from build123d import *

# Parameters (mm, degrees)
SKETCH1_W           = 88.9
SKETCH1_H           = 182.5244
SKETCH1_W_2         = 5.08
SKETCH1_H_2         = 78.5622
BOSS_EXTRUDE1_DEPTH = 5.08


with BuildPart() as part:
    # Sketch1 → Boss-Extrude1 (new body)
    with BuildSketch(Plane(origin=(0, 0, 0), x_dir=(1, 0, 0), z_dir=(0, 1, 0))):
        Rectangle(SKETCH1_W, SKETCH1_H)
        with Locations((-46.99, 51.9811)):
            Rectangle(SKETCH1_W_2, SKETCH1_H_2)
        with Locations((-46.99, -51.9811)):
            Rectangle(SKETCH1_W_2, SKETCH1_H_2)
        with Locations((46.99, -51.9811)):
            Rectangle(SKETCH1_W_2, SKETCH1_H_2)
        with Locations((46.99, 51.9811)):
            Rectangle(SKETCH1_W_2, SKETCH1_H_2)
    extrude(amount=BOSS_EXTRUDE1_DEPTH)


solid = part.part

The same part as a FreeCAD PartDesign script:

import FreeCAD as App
import Part
import Sketcher
Q = App.Units.Quantity

doc = App.newDocument("Part")
body = doc.addObject("PartDesign::Body", "Body")

# Sketch on XZ plane
sketch1 = body.newObject("Sketcher::SketchObject", "Sketch")
sketch1.AttachmentSupport = (doc.getObject("XZ_Plane"), [""])
sketch1.MapMode = "FlatFace"
sketch1.addGeometry(Part.LineSegment(App.Vector(-44, -13, 0), App.Vector(-44, 13, 0)), False)
sketch1.addGeometry(Part.LineSegment(App.Vector(-44, 13, 0), App.Vector(-50, 13, 0)), False)
sketch1.addGeometry(Part.LineSegment(App.Vector(-50, 13, 0), App.Vector(-50, 91, 0)), False)
sketch1.addGeometry(Part.LineSegment(App.Vector(-50, 91, 0), App.Vector(50, 91, 0)), False)
sketch1.addGeometry(Part.LineSegment(App.Vector(50, 91, 0), App.Vector(50, 13, 0)), False)
sketch1.addGeometry(Part.LineSegment(App.Vector(50, 13, 0), App.Vector(44, 13, 0)), False)
sketch1.addGeometry(Part.LineSegment(App.Vector(44, 13, 0), App.Vector(44, -13, 0)), False)
sketch1.addGeometry(Part.LineSegment(App.Vector(44, -13, 0), App.Vector(50, -13, 0)), False)
sketch1.addGeometry(Part.LineSegment(App.Vector(50, -13, 0), App.Vector(50, -91, 0)), False)
sketch1.addGeometry(Part.LineSegment(App.Vector(50, -91, 0), App.Vector(-50, -91, 0)), False)
sketch1.addGeometry(Part.LineSegment(App.Vector(-50, -91, 0), App.Vector(-50, -13, 0)), False)
sketch1.addGeometry(Part.LineSegment(App.Vector(-50, -13, 0), App.Vector(-44, -13, 0)), False)
sketch1.addConstraint(Sketcher.Constraint("Coincident", 0, 2, 1, 1))
sketch1.addConstraint(Sketcher.Constraint("Coincident", 1, 2, 2, 1))
sketch1.addConstraint(Sketcher.Constraint("Coincident", 2, 2, 3, 1))
sketch1.addConstraint(Sketcher.Constraint("Coincident", 3, 2, 4, 1))
sketch1.addConstraint(Sketcher.Constraint("Coincident", 4, 2, 5, 1))
sketch1.addConstraint(Sketcher.Constraint("Coincident", 5, 2, 6, 1))
sketch1.addConstraint(Sketcher.Constraint("Coincident", 6, 2, 7, 1))
sketch1.addConstraint(Sketcher.Constraint("Coincident", 7, 2, 8, 1))
sketch1.addConstraint(Sketcher.Constraint("Coincident", 8, 2, 9, 1))
sketch1.addConstraint(Sketcher.Constraint("Coincident", 9, 2, 10, 1))
sketch1.addConstraint(Sketcher.Constraint("Coincident", 10, 2, 11, 1))
sketch1.addConstraint(Sketcher.Constraint("Coincident", 11, 2, 0, 1))
sketch1.addConstraint(Sketcher.Constraint("Vertical", 0))
sketch1.addConstraint(Sketcher.Constraint("Horizontal", 1))
sketch1.addConstraint(Sketcher.Constraint("Vertical", 2))
sketch1.addConstraint(Sketcher.Constraint("Horizontal", 3))
sketch1.addConstraint(Sketcher.Constraint("Vertical", 4))
sketch1.addConstraint(Sketcher.Constraint("Horizontal", 5))
sketch1.addConstraint(Sketcher.Constraint("Vertical", 6))
sketch1.addConstraint(Sketcher.Constraint("Horizontal", 7))
sketch1.addConstraint(Sketcher.Constraint("Vertical", 8))
sketch1.addConstraint(Sketcher.Constraint("Horizontal", 9))
sketch1.addConstraint(Sketcher.Constraint("Vertical", 10))
sketch1.addConstraint(Sketcher.Constraint("Horizontal", 11))
sketch1.addConstraint(Sketcher.Constraint("Symmetric", 0, 2, 6, 2, -1, 1))
sketch1.addConstraint(Sketcher.Constraint("Symmetric", 2, 2, 8, 2, -1, 1))
sketch1.addConstraint(Sketcher.Constraint("Symmetric", 4, 2, 10, 2, -1, 1))
sketch1.addConstraint(Sketcher.Constraint("Symmetric", 1, 2, 4, 2, -2))
sketch1.addConstraint(Sketcher.Constraint("DistanceY", 0, 1, 0, 2, Q("1 in")))
sketch1.addConstraint(Sketcher.Constraint("DistanceX", 1, 2, 1, 1, Q("0.2 in")))
sketch1.addConstraint(Sketcher.Constraint("DistanceX", 3, 1, 3, 2, Q("3.9 in")))
sketch1.addConstraint(Sketcher.Constraint("DistanceY", 2, 1, 2, 2, Q("3.093 in")))
pad1 = body.newObject("PartDesign::Pad", "Pad")
pad1.Profile = sketch1
pad1.Length = Q("0.2 in")
pad1.Reversed = True

doc.recompute()
